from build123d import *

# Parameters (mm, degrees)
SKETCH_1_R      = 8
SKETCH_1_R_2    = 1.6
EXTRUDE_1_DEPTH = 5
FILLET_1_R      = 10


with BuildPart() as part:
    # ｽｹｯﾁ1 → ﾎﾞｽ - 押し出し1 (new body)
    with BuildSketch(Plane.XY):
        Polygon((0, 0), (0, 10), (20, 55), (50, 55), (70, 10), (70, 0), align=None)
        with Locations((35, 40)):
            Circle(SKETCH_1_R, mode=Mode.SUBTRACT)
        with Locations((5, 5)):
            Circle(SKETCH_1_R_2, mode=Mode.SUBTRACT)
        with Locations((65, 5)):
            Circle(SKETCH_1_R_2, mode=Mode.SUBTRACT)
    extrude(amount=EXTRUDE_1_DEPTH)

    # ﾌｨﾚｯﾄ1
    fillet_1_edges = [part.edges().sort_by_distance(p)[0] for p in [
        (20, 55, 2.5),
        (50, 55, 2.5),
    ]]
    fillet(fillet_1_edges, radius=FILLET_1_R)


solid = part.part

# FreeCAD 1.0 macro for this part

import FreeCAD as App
import Part
import Sketcher

V = App.Vector


def edges_at(feature, points):
    """Names of the edges that pass closest to the given points."""
    edges = feature.Shape.Edges
    near = lambda p: min(range(len(edges)), key=lambda i: edges[i].distToShape(Part.Vertex(*p))[0])
    return sorted({f"Edge{near(p) + 1}" for p in points})


def add_polygon(sketch, points):
    """Adds a closed chain of lines whose ends are joined by coincident constraints."""
    first, n = sketch.GeometryCount, len(points)
    for a, b in zip(points, points[1:] + points[:1]):
        sketch.addGeometry(Part.LineSegment(App.Vector(*a, 0), App.Vector(*b, 0)), False)
    for i in range(n):
        sketch.addConstraint(Sketcher.Constraint("Coincident", first + i, 2, first + (i + 1) % n, 1))

doc = App.newDocument("Part")
body = doc.addObject("PartDesign::Body", "Body")

# Sketch on XY plane
sketch1 = body.newObject("Sketcher::SketchObject", "Sketch")
sketch1.AttachmentSupport = (doc.getObject("XY_Plane"), [""])
sketch1.MapMode = "FlatFace"
add_polygon(sketch1, [(0, 10), (0, 0), (70, 0), (70, 10), (50, 55), (20, 55)])  # lines 0-5
sketch1.addGeometry(Part.Circle(V(65, 5, 0), V(0, 0, 1), 1.6), False)  # 6
sketch1.addGeometry(Part.Circle(V(5, 5, 0), V(0, 0, 1), 1.6), False)  # 7
sketch1.addGeometry(Part.Circle(V(35, 40, 0), V(0, 0, 1), 8), False)  # 8
sketch1.addConstraint(Sketcher.Constraint("Vertical", 0))
sketch1.addConstraint(Sketcher.Constraint("Horizontal", 1))
sketch1.addConstraint(Sketcher.Constraint("Vertical", 2))
sketch1.addConstraint(Sketcher.Constraint("Horizontal", 4))
sketch1.addConstraint(Sketcher.Constraint("Coincident", 0, 2, -1, 1))
sketch1.addConstraint(Sketcher.Constraint("Equal", 6, 7))
sketch1.addConstraint(Sketcher.Constraint("Horizontal", 6, 3, 7, 3))
sketch1.addConstraint(Sketcher.Constraint("Horizontal", 2, 2, 5, 2))
sketch1.addConstraint(Sketcher.Constraint("Equal", 3, 5))
sketch1.addConstraint(Sketcher.Constraint("Diameter", 8, 16.0))
sketch1.addConstraint(Sketcher.Constraint("Diameter", 6, 3.2))
sketch1.addConstraint(Sketcher.Constraint("DistanceX", 1, 1, 1, 2, 70.0))
sketch1.addConstraint(Sketcher.Constraint("DistanceX", 4, 2, 4, 1, 30.0))
sketch1.addConstraint(Sketcher.Constraint("DistanceY", 0, 2, 0, 1, 10.0))
sketch1.addConstraint(Sketcher.Constraint("DistanceX", -1, 1, 6, 3, 65.0))
sketch1.addConstraint(Sketcher.Constraint("DistanceY", -1, 1, 6, 3, 5.0))
sketch1.addConstraint(Sketcher.Constraint("DistanceX", -1, 1, 7, 3, 5.0))
sketch1.addConstraint(Sketcher.Constraint("DistanceX", -1, 1, 8, 3, 35.0))
sketch1.addConstraint(Sketcher.Constraint("DistanceY", -1, 1, 8, 3, 40.0))
sketch1.addConstraint(Sketcher.Constraint("DistanceY", -1, 1, 3, 2, 55.0))
pad1 = body.newObject("PartDesign::Pad", "Pad")
pad1.Profile = sketch1
pad1.Length = 5
doc.recompute()

fillet = body.newObject("PartDesign::Fillet", "Fillet")
fillet.Base = (pad1, edges_at(pad1, [(20, 55, 2.5), (50, 55, 2.5)]))
fillet.Radius = 10

doc.recompute()
